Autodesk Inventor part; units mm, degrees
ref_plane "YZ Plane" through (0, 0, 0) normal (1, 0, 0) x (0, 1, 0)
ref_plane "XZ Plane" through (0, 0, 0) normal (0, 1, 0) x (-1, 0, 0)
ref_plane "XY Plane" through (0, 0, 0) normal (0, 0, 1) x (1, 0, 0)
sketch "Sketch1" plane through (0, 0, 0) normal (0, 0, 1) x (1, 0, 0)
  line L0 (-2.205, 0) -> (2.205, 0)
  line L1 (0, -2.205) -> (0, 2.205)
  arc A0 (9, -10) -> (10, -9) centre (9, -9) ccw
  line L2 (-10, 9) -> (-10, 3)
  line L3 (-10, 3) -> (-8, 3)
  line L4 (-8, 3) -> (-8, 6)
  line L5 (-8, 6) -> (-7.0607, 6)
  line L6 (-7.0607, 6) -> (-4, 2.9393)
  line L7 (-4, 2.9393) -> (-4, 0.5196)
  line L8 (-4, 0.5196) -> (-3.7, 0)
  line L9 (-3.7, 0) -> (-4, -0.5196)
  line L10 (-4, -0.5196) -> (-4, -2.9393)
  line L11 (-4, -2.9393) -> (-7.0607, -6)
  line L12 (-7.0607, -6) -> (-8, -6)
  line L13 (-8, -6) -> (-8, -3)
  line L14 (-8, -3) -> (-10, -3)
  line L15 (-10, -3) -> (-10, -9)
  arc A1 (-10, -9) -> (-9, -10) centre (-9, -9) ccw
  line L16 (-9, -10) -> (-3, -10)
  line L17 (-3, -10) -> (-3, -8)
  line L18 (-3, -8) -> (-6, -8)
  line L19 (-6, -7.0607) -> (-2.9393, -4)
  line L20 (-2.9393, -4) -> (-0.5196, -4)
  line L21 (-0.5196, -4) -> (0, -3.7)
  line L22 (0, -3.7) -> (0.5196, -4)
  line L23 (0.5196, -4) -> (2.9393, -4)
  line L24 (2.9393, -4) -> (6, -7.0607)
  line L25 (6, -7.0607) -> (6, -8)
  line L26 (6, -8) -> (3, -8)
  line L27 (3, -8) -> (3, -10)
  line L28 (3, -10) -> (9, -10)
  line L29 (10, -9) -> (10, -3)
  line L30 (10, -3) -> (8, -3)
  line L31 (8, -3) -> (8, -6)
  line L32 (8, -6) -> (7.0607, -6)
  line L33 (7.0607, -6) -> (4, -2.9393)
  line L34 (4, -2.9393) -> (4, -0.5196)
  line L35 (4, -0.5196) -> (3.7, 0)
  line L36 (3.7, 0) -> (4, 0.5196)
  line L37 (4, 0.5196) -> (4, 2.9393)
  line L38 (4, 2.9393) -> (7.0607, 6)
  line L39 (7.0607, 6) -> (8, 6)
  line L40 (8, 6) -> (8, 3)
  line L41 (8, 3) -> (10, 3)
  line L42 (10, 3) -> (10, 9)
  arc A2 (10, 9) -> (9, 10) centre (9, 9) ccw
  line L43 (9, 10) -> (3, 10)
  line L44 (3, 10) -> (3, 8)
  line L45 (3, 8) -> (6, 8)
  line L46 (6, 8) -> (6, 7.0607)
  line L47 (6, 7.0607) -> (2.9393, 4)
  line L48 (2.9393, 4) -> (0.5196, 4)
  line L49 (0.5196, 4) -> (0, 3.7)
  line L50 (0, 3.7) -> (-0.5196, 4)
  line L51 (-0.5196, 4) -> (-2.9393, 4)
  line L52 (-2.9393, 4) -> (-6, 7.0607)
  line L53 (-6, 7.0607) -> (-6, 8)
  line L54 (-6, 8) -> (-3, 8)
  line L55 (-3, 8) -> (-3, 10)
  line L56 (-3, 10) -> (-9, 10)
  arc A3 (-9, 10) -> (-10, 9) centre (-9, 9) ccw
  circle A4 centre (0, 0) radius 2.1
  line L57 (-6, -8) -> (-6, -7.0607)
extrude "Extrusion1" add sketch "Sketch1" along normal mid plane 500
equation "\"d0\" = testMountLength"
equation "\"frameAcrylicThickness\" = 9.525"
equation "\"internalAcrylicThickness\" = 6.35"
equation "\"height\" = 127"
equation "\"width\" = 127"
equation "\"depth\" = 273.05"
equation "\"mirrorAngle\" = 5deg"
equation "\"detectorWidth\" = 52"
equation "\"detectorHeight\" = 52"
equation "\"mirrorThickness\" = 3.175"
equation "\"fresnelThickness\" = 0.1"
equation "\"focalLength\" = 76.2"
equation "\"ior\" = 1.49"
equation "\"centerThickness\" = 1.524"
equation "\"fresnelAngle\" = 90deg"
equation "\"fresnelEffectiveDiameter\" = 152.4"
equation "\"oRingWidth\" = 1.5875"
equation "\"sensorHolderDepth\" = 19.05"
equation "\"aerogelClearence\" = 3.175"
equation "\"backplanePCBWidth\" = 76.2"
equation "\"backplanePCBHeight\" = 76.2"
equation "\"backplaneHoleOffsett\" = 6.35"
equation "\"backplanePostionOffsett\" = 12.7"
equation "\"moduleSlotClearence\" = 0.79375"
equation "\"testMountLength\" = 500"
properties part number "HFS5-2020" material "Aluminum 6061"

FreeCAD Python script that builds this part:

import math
import FreeCAD as App
import Part
import Sketcher
Q = App.Units.Quantity

doc = App.newDocument("Part")
body = doc.addObject("PartDesign::Body", "Body")

# Sketch on XY plane
sketch1 = body.newObject("Sketcher::SketchObject", "Sketch")
sketch1.AttachmentSupport = (doc.getObject("XY_Plane"), [""])
sketch1.MapMode = "FlatFace"
sketch1.addGeometry(Part.LineSegment(App.Vector(3, -10, 0), App.Vector(9, -10, 0)), False)
sketch1.addGeometry(Part.ArcOfCircle(Part.Circle(App.Vector(9, -9, 0), App.Vector(0, 0, 1), 1), math.radians(-90), math.radians(0)), False)
sketch1.addGeometry(Part.LineSegment(App.Vector(10, -9, 0), App.Vector(10, -3, 0)), False)
sketch1.addGeometry(Part.LineSegment(App.Vector(10, -3, 0), App.Vector(8, -3, 0)), False)
sketch1.addGeometry(Part.LineSegment(App.Vector(8, -3, 0), App.Vector(8, -6, 0)), False)
sketch1.addGeometry(Part.LineSegment(App.Vector(8, -6, 0), App.Vector(7.1, -6, 0)), False)
sketch1.addGeometry(Part.LineSegment(App.Vector(7.1, -6, 0), App.Vector(4, -2.9, 0)), False)
sketch1.addGeometry(Part.LineSegment(App.Vector(4, -2.9, 0), App.Vector(4, -0.5, 0)), False)
sketch1.addGeometry(Part.LineSegment(App.Vector(4, -0.5, 0), App.Vector(3.7, 0, 0)), False)
sketch1.addGeometry(Part.LineSegment(App.Vector(3.7, 0, 0), App.Vector(4, 0.5, 0)), False)
sketch1.addGeometry(Part.LineSegment(App.Vector(4, 0.5, 0), App.Vector(4, 2.9, 0)), False)
sketch1.addGeometry(Part.LineSegment(App.Vector(4, 2.9, 0), App.Vector(7.1, 6, 0)), False)
sketch1.addGeometry(Part.LineSegment(App.Vector(7.1, 6, 0), App.Vector(8, 6, 0)), False)
sketch1.addGeometry(Part.LineSegment(App.Vector(8, 6, 0), App.Vector(8, 3, 0)), False)
sketch1.addGeometry(Part.LineSegment(App.Vector(8, 3, 0), App.Vector(10, 3, 0)), False)
sketch1.addGeometry(Part.LineSegment(App.Vector(10, 3, 0), App.Vector(10, 9, 0)), False)
sketch1.addGeometry(Part.ArcOfCircle(Part.Circle(App.Vector(9, 9, 0), App.Vector(0, 0, 1), 1), math.radians(0), math.radians(90)), False)
sketch1.addGeometry(Part.LineSegment(App.Vector(9, 10, 0), App.Vector(3, 10, 0)), False)
sketch1.addGeometry(Part.LineSegment(App.Vector(3, 10, 0), App.Vector(3, 8, 0)), False)
sketch1.addGeometry(Part.LineSegment(App.Vector(3, 8, 0), App.Vector(6, 8, 0)), False)
sketch1.addGeometry(Part.LineSegment(App.Vector(6, 8, 0), App.Vector(6, 7.1, 0)), False)
sketch1.addGeometry(Part.LineSegment(App.Vector(6, 7.1, 0), App.Vector(2.9, 4, 0)), False)
sketch1.addGeometry(Part.LineSegment(App.Vector(2.9, 4, 0), App.Vector(0.5, 4, 0)), False)
sketch1.addGeometry(Part.LineSegment(App.Vector(0.5, 4, 0), App.Vector(0, 3.7, 0)), False)
sketch1.addGeometry(Part.LineSegment(App.Vector(0, 3.7, 0), App.Vector(-0.5, 4, 0)), False)
sketch1.addGeometry(Part.LineSegment(App.Vector(-0.5, 4, 0), App.Vector(-2.9, 4, 0)), False)
sketch1.addGeometry(Part.LineSegment(App.Vector(-2.9, 4, 0), App.Vector(-6, 7.1, 0)), False)
sketch1.addGeometry(Part.LineSegment(App.Vector(-6, 7.1, 0), App.Vector(-6, 8, 0)), False)
sketch1.addGeometry(Part.LineSegment(App.Vector(-6, 8, 0), App.Vector(-3, 8, 0)), False)
sketch1.addGeometry(Part.LineSegment(App.Vector(-3, 8, 0), App.Vector(-3, 10, 0)), False)
sketch1.addGeometry(Part.LineSegment(App.Vector(-3, 10, 0), App.Vector(-9, 10, 0)), False)
sketch1.addGeometry(Part.ArcOfCircle(Part.Circle(App.Vector(-9, 9, 0), App.Vector(0, 0, 1), 1), math.radians(90), math.radians(180)), False)
sketch1.addGeometry(Part.LineSegment(App.Vector(-10, 9, 0), App.Vector(-10, 3, 0)), False)
sketch1.addGeometry(Part.LineSegment(App.Vector(-10, 3, 0), App.Vector(-8, 3, 0)), False)
sketch1.addGeometry(Part.LineSegment(App.Vector(-8, 3, 0), App.Vector(-8, 6, 0)), False)
sketch1.addGeometry(Part.LineSegment(App.Vector(-8, 6, 0), App.Vector(-7.1, 6, 0)), False)
sketch1.addGeometry(Part.LineSegment(App.Vector(-7.1, 6, 0), App.Vector(-4, 2.9, 0)), False)
sketch1.addGeometry(Part.LineSegment(App.Vector(-4, 2.9, 0), App.Vector(-4, 0.5, 0)), False)
sketch1.addGeometry(Part.LineSegment(App.Vector(-4, 0.5, 0), App.Vector(-3.7, 0, 0)), False)
sketch1.addGeometry(Part.LineSegment(App.Vector(-3.7, 0, 0), App.Vector(-4, -0.5, 0)), False)
sketch1.addGeometry(Part.LineSegment(App.Vector(-4, -0.5, 0), App.Vector(-4, -2.9, 0)), False)
sketch1.addGeometry(Part.LineSegment(App.Vector(-4, -2.9, 0), App.Vector(-7.1, -6, 0)), False)
sketch1.addGeometry(Part.LineSegment(App.Vector(-7.1, -6, 0), App.Vector(-8, -6, 0)), False)
sketch1.addGeometry(Part.LineSegment(App.Vector(-8, -6, 0), App.Vector(-8, -3, 0)), False)
sketch1.addGeometry(Part.LineSegment(App.Vector(-8, -3, 0), App.Vector(-10, -3, 0)), False)
sketch1.addGeometry(Part.LineSegment(App.Vector(-10, -3, 0), App.Vector(-10, -9, 0)), False)
sketch1.addGeometry(Part.ArcOfCircle(Part.Circle(App.Vector(-9, -9, 0), App.Vector(0, 0, 1), 1), math.radians(180), math.radians(270)), False)
sketch1.addGeometry(Part.LineSegment(App.Vector(-9, -10, 0), App.Vector(-3, -10, 0)), False)
sketch1.addGeometry(Part.LineSegment(App.Vector(-3, -10, 0), App.Vector(-3, -8, 0)), False)
sketch1.addGeometry(Part.LineSegment(App.Vector(-3, -8, 0), App.Vector(-6, -8, 0)), False)
sketch1.addGeometry(Part.LineSegment(App.Vector(-6, -8, 0), App.Vector(-6, -7.1, 0)), False)
sketch1.addGeometry(Part.LineSegment(App.Vector(-6, -7.1, 0), App.Vector(-2.9, -4, 0)), False)
sketch1.addGeometry(Part.LineSegment(App.Vector(-2.9, -4, 0), App.Vector(-0.5, -4, 0)), False)
sketch1.addGeometry(Part.LineSegment(App.Vector(-0.5, -4, 0), App.Vector(0, -3.7, 0)), False)
sketch1.addGeometry(Part.LineSegment(App.Vector(0, -3.7, 0), App.Vector(0.5, -4, 0)), False)
sketch1.addGeometry(Part.LineSegment(App.Vector(0.5, -4, 0), App.Vector(2.9, -4, 0)), False)
sketch1.addGeometry(Part.LineSegment(App.Vector(2.9, -4, 0), App.Vector(6, -7.1, 0)), False)
sketch1.addGeometry(Part.LineSegment(App.Vector(6, -7.1, 0), App.Vector(6, -8, 0)), False)
sketch1.addGeometry(Part.LineSegment(App.Vector(6, -8, 0), App.Vector(3, -8, 0)), False)
sketch1.addGeometry(Part.LineSegment(App.Vector(3, -8, 0), App.Vector(3, -10, 0)), False)
sketch1.addGeometry(Part.Circle(App.Vector(0, 0, 0), App.Vector(0, 0, 1), 2.1), False)
sketch1.addConstraint(Sketcher.Constraint("Tangent", 0, 2, 1, 1))
sketch1.addConstraint(Sketcher.Constraint("Tangent", 1, 2, 2, 1))
sketch1.addConstraint(Sketcher.Constraint("Coincident", 2, 2, 3, 1))
sketch1.addConstraint(Sketcher.Constraint("Coincident", 3, 2, 4, 1))
sketch1.addConstraint(Sketcher.Constraint("Coincident", 4, 2, 5, 1))
sketch1.addConstraint(Sketcher.Constraint("Coincident", 5, 2, 6, 1))
sketch1.addConstraint(Sketcher.Constraint("Coincident", 6, 2, 7, 1))
sketch1.addConstraint(Sketcher.Constraint("Coincident", 7, 2, 8, 1))
sketch1.addConstraint(Sketcher.Constraint("Coincident", 8, 2, 9, 1))
sketch1.addConstraint(Sketcher.Constraint("Coincident", 9, 2, 10, 1))
sketch1.addConstraint(Sketcher.Constraint("Coincident", 10, 2, 11, 1))
sketch1.addConstraint(Sketcher.Constraint("Coincident", 11, 2, 12, 1))
sketch1.addConstraint(Sketcher.Constraint("Coincident", 12, 2, 13, 1))
sketch1.addConstraint(Sketcher.Constraint("Coincident", 13, 2, 14, 1))
sketch1.addConstraint(Sketcher.Constraint("Coincident", 14, 2, 15, 1))
sketch1.addConstraint(Sketcher.Constraint("Tangent", 15, 2, 16, 1))
sketch1.addConstraint(Sketcher.Constraint("Tangent", 16, 2, 17, 1))
sketch1.addConstraint(Sketcher.Constraint("Coincident", 17, 2, 18, 1))
sketch1.addConstraint(Sketcher.Constraint("Coincident", 18, 2, 19, 1))
sketch1.addConstraint(Sketcher.Constraint("Coincident", 19, 2, 20, 1))
sketch1.addConstraint(Sketcher.Constraint("Coincident", 20, 2, 21, 1))
sketch1.addConstraint(Sketcher.Constraint("Coincident", 21, 2, 22, 1))
sketch1.addConstraint(Sketcher.Constraint("Coincident", 22, 2, 23, 1))
sketch1.addConstraint(Sketcher.Constraint("Coincident", 23, 2, 24, 1))
sketch1.addConstraint(Sketcher.Constraint("Coincident", 24, 2, 25, 1))
sketch1.addConstraint(Sketcher.Constraint("Coincident", 25, 2, 26, 1))
sketch1.addConstraint(Sketcher.Constraint("Coincident", 26, 2, 27, 1))
sketch1.addConstraint(Sketcher.Constraint("Coincident", 27, 2, 28, 1))
sketch1.addConstraint(Sketcher.Constraint("Coincident", 28, 2, 29, 1))
sketch1.addConstraint(Sketcher.Constraint("Coincident", 29, 2, 30, 1))
sketch1.addConstraint(Sketcher.Constraint("Tangent", 30, 2, 31, 1))
sketch1.addConstraint(Sketcher.Constraint("Tangent", 31, 2, 32, 1))
sketch1.addConstraint(Sketcher.Constraint("Coincident", 32, 2, 33, 1))
sketch1.addConstraint(Sketcher.Constraint("Coincident", 33, 2, 34, 1))
sketch1.addConstraint(Sketcher.Constraint("Coincident", 34, 2, 35, 1))
sketch1.addConstraint(Sketcher.Constraint("Coincident", 35, 2, 36, 1))
sketch1.addConstraint(Sketcher.Constraint("Coincident", 36, 2, 37, 1))
sketch1.addConstraint(Sketcher.Constraint("Coincident", 37, 2, 38, 1))
sketch1.addConstraint(Sketcher.Constraint("Coincident", 38, 2, 39, 1))
sketch1.addConstraint(Sketcher.Constraint("Coincident", 39, 2, 40, 1))
sketch1.addConstraint(Sketcher.Constraint("Coincident", 40, 2, 41, 1))
sketch1.addConstraint(Sketcher.Constraint("Coincident", 41, 2, 42, 1))
sketch1.addConstraint(Sketcher.Constraint("Coincident", 42, 2, 43, 1))
sketch1.addConstraint(Sketcher.Constraint("Coincident", 43, 2, 44, 1))
sketch1.addConstraint(Sketcher.Constraint("Coincident", 44, 2, 45, 1))
sketch1.addConstraint(Sketcher.Constraint("Tangent", 45, 2, 46, 1))
sketch1.addConstraint(Sketcher.Constraint("Tangent", 46, 2, 47, 1))
sketch1.addConstraint(Sketcher.Constraint("Coincident", 47, 2, 48, 1))
sketch1.addConstraint(Sketcher.Constraint("Coincident", 48, 2, 49, 1))
sketch1.addConstraint(Sketcher.Constraint("Coincident", 49, 2, 50, 1))
sketch1.addConstraint(Sketcher.Constraint("Coincident", 50, 2, 51, 1))
sketch1.addConstraint(Sketcher.Constraint("Coincident", 51, 2, 52, 1))
sketch1.addConstraint(Sketcher.Constraint("Coincident", 52, 2, 53, 1))
sketch1.addConstraint(Sketcher.Constraint("Coincident", 53, 2, 54, 1))
sketch1.addConstraint(Sketcher.Constraint("Coincident", 54, 2, 55, 1))
sketch1.addConstraint(Sketcher.Constraint("Coincident", 55, 2, 56, 1))
sketch1.addConstraint(Sketcher.Constraint("Coincident", 56, 2, 57, 1))
sketch1.addConstraint(Sketcher.Constraint("Coincident", 57, 2, 58, 1))
sketch1.addConstraint(Sketcher.Constraint("Coincident", 58, 2, 59, 1))
sketch1.addConstraint(Sketcher.Constraint("Coincident", 59, 2, 0, 1))
sketch1.addConstraint(Sketcher.Constraint("Horizontal", 0))
sketch1.addConstraint(Sketcher.Constraint("Vertical", 2))
sketch1.addConstraint(Sketcher.Constraint("Horizontal", 3))
sketch1.addConstraint(Sketcher.Constraint("Vertical", 4))
sketch1.addConstraint(Sketcher.Constraint("Horizontal", 5))
sketch1.addConstraint(Sketcher.Constraint("Vertical", 7))
sketch1.addConstraint(Sketcher.Constraint("Vertical", 10))
sketch1.addConstraint(Sketcher.Constraint("Horizontal", 12))
sketch1.addConstraint(Sketcher.Constraint("Vertical", 13))
sketch1.addConstraint(Sketcher.Constraint("Horizontal", 14))
sketch1.addConstraint(Sketcher.Constraint("Vertical", 15))
sketch1.addConstraint(Sketcher.Constraint("Horizontal", 17))
sketch1.addConstraint(Sketcher.Constraint("Vertical", 18))
sketch1.addConstraint(Sketcher.Constraint("Horizontal", 19))
sketch1.addConstraint(Sketcher.Constraint("Vertical", 20))
sketch1.addConstraint(Sketcher.Constraint("Horizontal", 22))
sketch1.addConstraint(Sketcher.Constraint("Horizontal", 25))
sketch1.addConstraint(Sketcher.Constraint("Vertical", 27))
sketch1.addConstraint(Sketcher.Constraint("Horizontal", 28))
sketch1.addConstraint(Sketcher.Constraint("Vertical", 29))
sketch1.addConstraint(Sketcher.Constraint("Horizontal", 30))
sketch1.addConstraint(Sketcher.Constraint("Vertical", 32))
sketch1.addConstraint(Sketcher.Constraint("Horizontal", 33))
sketch1.addConstraint(Sketcher.Constraint("Vertical", 34))
sketch1.addConstraint(Sketcher.Constraint("Horizontal", 35))
sketch1.addConstraint(Sketcher.Constraint("Vertical", 37))
sketch1.addConstraint(Sketcher.Constraint("Vertical", 40))
sketch1.addConstraint(Sketcher.Constraint("Horizontal", 42))
sketch1.addConstraint(Sketcher.Constraint("Vertical", 43))
sketch1.addConstraint(Sketcher.Constraint("Horizontal", 44))
sketch1.addConstraint(Sketcher.Constraint("Vertical", 45))
sketch1.addConstraint(Sketcher.Constraint("Horizontal", 47))
sketch1.addConstraint(Sketcher.Constraint("Vertical", 48))
sketch1.addConstraint(Sketcher.Constraint("Horizontal", 49))
sketch1.addConstraint(Sketcher.Constraint("Vertical", 50))
sketch1.addConstraint(Sketcher.Constraint("Horizontal", 52))
sketch1.addConstraint(Sketcher.Constraint("Horizontal", 55))
sketch1.addConstraint(Sketcher.Constraint("Vertical", 57))
sketch1.addConstraint(Sketcher.Constraint("Horizontal", 58))
sketch1.addConstraint(Sketcher.Constraint("Vertical", 59))
sketch1.addConstraint(Sketcher.Constraint("Coincident", 60, 3, -1, 1))
sketch1.addConstraint(Sketcher.Constraint("Equal", 1, 16))
sketch1.addConstraint(Sketcher.Constraint("Equal", 16, 31))
sketch1.addConstraint(Sketcher.Constraint("Equal", 31, 46))
sketch1.addConstraint(Sketcher.Constraint("Symmetric", 1, 3, 31, 3, -1, 1))
sketch1.addConstraint(Sketcher.Constraint("Symmetric", 16, 3, 46, 3, -1, 1))
sketch1.addConstraint(Sketcher.Constraint("Symmetric", 3, 2, 33, 2, -1, 1))
sketch1.addConstraint(Sketcher.Constraint("Symmetric", 5, 2, 35, 2, -1, 1))
sketch1.addConstraint(Sketcher.Constraint("Symmetric", 6, 2, 36, 2, -1, 1))
sketch1.addConstraint(Sketcher.Constraint("Symmetric", 8, 2, 38, 2, -1, 1))
sketch1.addConstraint(Sketcher.Constraint("Symmetric", 9, 2, 39, 2, -1, 1))
sketch1.addConstraint(Sketcher.Constraint("Symmetric", 11, 2, 41, 2, -1, 1))
sketch1.addConstraint(Sketcher.Constraint("Symmetric", 13, 2, 43, 2, -1, 1))
sketch1.addConstraint(Sketcher.Constraint("Symmetric", 18, 2, 48, 2, -1, 1))
sketch1.addConstraint(Sketcher.Constraint("Symmetric", 20, 2, 50, 2, -1, 1))
sketch1.addConstraint(Sketcher.Constraint("Symmetric", 21, 2, 51, 2, -1, 1))
sketch1.addConstraint(Sketcher.Constraint("Symmetric", 23, 2, 53, 2, -1, 1))
sketch1.addConstraint(Sketcher.Constraint("Symmetric", 24, 2, 54, 2, -1, 1))
sketch1.addConstraint(Sketcher.Constraint("Symmetric", 26, 2, 56, 2, -1, 1))
sketch1.addConstraint(Sketcher.Constraint("Symmetric", 28, 2, 58, 2, -1, 1))
sketch1.addConstraint(Sketcher.Constraint("Symmetric", 16, 3, 31, 3, -2))
sketch1.addConstraint(Sketcher.Constraint("Symmetric", 22, 2, 24, 2, -2))
sketch1.addConstraint(Sketcher.Constraint("Symmetric", 20, 2, 26, 2, -2))
sketch1.addConstraint(Sketcher.Constraint("Symmetric", 18, 2, 28, 2, -2))
sketch1.addConstraint(Sketcher.Constraint("Symmetric", 13, 2, 33, 2, -2))
sketch1.addConstraint(Sketcher.Constraint("Symmetric", 11, 2, 35, 2, -2))
sketch1.addConstraint(Sketcher.Constraint("Symmetric", 10, 2, 36, 2, -2))
sketch1.addConstraint(Sketcher.Constraint("PointOnObject", 8, 2, -1))
sketch1.addConstraint(Sketcher.Constraint("PointOnObject", 23, 2, -2))
sketch1.addConstraint(Sketcher.Constraint("Perpendicular", 6, 11))
sketch1.addConstraint(Sketcher.Constraint("Parallel", 11, 21))
sketch1.addConstraint(Sketcher.Constraint("Perpendicular", 8, 23))
sketch1.addConstraint(Sketcher.Constraint("Perpendicular", 9, 24))
sketch1.addConstraint(Sketcher.Constraint("Perpendicular", 21, 26))
sketch1.addConstraint(Sketcher.Constraint("Perpendicular", 23, 38))
sketch1.addConstraint(Sketcher.Constraint("Perpendicular", 36, 41))
sketch1.addConstraint(Sketcher.Constraint("Perpendicular", 38, 53))
sketch1.addConstraint(Sketcher.Constraint("Perpendicular", 51, 56))
sketch1.addConstraint(Sketcher.Constraint("Equal", 47, 2))
sketch1.addConstraint(Sketcher.Constraint("Equal", 58, 4))
sketch1.addConstraint(Sketcher.Constraint("Equal", 55, 7))
sketch1.addConstraint(Sketcher.Constraint("Equal", 44, 18))
sketch1.addConstraint(Sketcher.Constraint("Equal", 42, 20))
sketch1.addConstraint(Sketcher.Constraint("Equal", 11, 21))
sketch1.addConstraint(Sketcher.Constraint("Equal", 9, 23))
sketch1.addConstraint(Sketcher.Constraint("Radius", 1, Q("1 mm")))
sketch1.addConstraint(Sketcher.Constraint("Diameter", 60, Q("4.2 mm")))
sketch1.addConstraint(Sketcher.Constraint("DistanceX", 0, 1, 0, 2, Q("6 mm")))
sketch1.addConstraint(Sketcher.Constraint("DistanceX", 3, 2, 3, 1, Q("2 mm")))
sketch1.addConstraint(Sketcher.Constraint("DistanceX", 19, 1, 19, 2, Q("3 mm")))
sketch1.addConstraint(Sketcher.Constraint("Angle", 8, Q("120.0007 deg")))
sketch1.addConstraint(Sketcher.Constraint("DistanceX", -1, 1, 1, 3, Q("9 mm")))
sketch1.addConstraint(Sketcher.Constraint("DistanceX", -1, 1, 6, 2, Q("4 mm")))
sketch1.addConstraint(Sketcher.Constraint("Distance", 8, Q("0.6 mm")))
sketch1.addConstraint(Sketcher.Constraint("DistanceX", 5, 2, 5, 1, Q("0.9393 mm")))
pad1 = body.newObject("PartDesign::Pad", "Pad")
pad1.Profile = sketch1
pad1.Length = 500
pad1.Midplane = True

doc.recompute()
